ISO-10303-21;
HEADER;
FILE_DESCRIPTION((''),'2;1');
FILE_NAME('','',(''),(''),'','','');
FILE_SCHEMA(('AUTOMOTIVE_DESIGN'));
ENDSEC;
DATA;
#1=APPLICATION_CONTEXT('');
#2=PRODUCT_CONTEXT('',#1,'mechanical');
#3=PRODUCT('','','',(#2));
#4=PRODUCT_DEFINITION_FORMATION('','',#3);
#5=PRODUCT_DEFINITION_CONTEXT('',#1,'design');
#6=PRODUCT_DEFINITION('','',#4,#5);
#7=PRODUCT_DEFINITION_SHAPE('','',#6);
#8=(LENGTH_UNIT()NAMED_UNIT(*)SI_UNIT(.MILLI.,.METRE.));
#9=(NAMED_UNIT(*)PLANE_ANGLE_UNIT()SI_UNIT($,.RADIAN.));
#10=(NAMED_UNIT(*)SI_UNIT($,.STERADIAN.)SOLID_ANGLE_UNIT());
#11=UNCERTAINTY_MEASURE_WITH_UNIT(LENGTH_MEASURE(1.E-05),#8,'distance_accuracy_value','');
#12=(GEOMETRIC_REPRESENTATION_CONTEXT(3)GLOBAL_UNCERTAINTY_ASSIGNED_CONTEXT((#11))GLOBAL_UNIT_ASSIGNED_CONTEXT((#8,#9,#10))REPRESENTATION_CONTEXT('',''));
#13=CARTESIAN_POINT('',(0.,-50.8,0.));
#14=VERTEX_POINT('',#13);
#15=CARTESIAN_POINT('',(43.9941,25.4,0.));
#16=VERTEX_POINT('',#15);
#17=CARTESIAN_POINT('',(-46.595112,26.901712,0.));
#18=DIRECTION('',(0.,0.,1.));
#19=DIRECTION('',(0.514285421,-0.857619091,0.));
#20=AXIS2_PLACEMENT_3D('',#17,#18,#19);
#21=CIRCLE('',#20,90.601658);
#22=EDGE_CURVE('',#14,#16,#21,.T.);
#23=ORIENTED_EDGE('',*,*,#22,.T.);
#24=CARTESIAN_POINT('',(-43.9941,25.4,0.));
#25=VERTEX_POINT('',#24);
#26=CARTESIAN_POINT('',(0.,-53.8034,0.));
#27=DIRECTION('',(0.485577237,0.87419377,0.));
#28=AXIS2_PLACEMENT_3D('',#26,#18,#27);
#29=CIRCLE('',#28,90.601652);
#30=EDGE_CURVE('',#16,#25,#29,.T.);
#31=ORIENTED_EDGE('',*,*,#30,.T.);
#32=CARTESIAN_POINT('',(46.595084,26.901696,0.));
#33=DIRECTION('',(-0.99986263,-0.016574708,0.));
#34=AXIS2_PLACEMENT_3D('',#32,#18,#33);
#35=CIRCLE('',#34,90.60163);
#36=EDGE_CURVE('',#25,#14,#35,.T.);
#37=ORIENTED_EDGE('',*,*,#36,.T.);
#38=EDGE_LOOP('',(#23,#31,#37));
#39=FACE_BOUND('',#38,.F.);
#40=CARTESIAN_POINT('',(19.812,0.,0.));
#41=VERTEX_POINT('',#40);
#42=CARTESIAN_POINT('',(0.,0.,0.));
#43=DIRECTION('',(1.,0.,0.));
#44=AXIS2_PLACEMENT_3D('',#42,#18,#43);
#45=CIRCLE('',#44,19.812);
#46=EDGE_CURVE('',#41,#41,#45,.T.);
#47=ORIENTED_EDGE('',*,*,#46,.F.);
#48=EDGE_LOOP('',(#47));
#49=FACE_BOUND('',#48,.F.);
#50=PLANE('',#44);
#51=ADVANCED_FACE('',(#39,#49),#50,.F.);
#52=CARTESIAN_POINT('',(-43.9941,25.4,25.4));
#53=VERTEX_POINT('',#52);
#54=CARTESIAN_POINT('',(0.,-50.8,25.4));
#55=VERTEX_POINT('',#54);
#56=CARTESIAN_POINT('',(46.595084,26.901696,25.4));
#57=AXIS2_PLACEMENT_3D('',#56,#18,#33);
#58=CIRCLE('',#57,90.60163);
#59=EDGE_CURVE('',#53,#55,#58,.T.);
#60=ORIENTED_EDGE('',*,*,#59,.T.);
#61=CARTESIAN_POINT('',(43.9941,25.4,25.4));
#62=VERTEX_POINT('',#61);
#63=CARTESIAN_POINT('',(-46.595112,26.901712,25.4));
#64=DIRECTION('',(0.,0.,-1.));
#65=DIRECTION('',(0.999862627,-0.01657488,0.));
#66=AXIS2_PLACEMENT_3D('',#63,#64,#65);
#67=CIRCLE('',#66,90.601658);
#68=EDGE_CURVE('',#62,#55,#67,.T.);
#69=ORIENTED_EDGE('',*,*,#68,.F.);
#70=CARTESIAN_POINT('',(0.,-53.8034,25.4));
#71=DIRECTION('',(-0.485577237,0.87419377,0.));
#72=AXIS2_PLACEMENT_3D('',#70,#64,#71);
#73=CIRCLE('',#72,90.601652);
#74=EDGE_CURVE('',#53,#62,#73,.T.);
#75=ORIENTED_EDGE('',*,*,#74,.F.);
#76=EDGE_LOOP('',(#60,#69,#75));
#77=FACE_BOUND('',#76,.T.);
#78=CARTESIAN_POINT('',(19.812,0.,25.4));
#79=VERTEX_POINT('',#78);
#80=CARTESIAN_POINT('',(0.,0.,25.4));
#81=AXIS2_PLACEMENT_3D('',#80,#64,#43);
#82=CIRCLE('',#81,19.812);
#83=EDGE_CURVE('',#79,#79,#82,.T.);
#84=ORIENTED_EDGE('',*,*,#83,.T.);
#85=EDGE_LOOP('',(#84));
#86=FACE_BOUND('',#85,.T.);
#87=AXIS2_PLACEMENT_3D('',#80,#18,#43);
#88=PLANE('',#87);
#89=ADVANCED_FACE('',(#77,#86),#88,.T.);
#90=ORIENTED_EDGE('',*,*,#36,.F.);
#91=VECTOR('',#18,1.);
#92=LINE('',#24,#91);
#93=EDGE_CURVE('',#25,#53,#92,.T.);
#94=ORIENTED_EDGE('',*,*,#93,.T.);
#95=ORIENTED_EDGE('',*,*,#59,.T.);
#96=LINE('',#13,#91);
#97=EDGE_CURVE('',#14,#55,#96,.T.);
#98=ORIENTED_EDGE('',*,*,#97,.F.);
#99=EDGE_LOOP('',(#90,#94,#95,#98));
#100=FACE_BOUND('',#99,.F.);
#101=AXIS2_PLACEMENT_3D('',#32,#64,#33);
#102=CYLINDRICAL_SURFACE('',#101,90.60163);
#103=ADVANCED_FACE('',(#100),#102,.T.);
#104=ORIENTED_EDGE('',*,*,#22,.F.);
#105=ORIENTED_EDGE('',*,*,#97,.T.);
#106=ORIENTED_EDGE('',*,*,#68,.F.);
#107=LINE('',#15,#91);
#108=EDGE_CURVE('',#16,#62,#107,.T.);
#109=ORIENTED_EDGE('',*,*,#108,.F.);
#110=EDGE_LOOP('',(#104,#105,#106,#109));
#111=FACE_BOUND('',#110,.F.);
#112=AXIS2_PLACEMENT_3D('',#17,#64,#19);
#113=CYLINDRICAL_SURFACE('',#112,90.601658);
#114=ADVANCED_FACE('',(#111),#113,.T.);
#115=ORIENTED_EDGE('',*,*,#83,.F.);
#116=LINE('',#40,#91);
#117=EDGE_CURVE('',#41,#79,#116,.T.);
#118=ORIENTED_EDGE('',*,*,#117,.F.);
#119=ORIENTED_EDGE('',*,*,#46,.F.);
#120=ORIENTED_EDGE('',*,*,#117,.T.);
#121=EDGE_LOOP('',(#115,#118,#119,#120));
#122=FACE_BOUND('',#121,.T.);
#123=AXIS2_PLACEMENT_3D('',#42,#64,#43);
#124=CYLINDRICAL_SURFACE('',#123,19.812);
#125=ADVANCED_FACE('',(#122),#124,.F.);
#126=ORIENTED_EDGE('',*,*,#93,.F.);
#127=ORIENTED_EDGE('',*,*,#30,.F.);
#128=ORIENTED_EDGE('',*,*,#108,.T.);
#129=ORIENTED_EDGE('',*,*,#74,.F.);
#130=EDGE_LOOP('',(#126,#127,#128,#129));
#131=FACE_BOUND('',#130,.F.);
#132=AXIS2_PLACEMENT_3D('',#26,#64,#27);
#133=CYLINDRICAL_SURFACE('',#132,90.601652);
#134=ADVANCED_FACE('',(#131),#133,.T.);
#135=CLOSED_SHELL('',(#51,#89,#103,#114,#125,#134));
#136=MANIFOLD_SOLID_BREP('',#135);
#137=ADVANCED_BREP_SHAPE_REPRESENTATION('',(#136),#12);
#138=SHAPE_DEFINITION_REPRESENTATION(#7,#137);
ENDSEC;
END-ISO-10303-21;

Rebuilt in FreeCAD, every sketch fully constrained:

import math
import FreeCAD as App
import Part
import Sketcher
Q = App.Units.Quantity

doc = App.newDocument("Part")
body = doc.addObject("PartDesign::Body", "Body")

sketch1 = body.newObject("Sketcher::SketchObject", "Sketch")
sketch1.AttachmentSupport = (doc.getObject("XY_Plane"), [""])
sketch1.MapMode = "FlatFace"
sketch1.addGeometry(Part.ArcOfCircle(Part.Circle(App.Vector(47, 27, 0), App.Vector(0, 0, 1), 91), math.radians(-179), math.radians(-121)), False)
sketch1.addGeometry(Part.ArcOfCircle(Part.Circle(App.Vector(-47, 27, 0), App.Vector(0, 0, 1), 91), math.radians(-59), math.radians(-1)), False)
sketch1.addGeometry(Part.ArcOfCircle(Part.Circle(App.Vector(0, -54, 0), App.Vector(0, 0, 1), 91), math.radians(61), math.radians(119)), False)
sketch1.addGeometry(Part.Circle(App.Vector(0, 0, 0), App.Vector(0, 0, 1), 20), False)
sketch1.addConstraint(Sketcher.Constraint("Coincident", 0, 2, 1, 1))
sketch1.addConstraint(Sketcher.Constraint("Coincident", 1, 2, 2, 1))
sketch1.addConstraint(Sketcher.Constraint("Coincident", 2, 2, 0, 1))
sketch1.addConstraint(Sketcher.Constraint("Coincident", 3, 3, -1, 1))
sketch1.addConstraint(Sketcher.Constraint("Equal", 0, 1))
sketch1.addConstraint(Sketcher.Constraint("Equal", 1, 2))
sketch1.addConstraint(Sketcher.Constraint("Symmetric", 0, 3, 1, 3, -2))
sketch1.addConstraint(Sketcher.Constraint("PointOnObject", 2, 3, -2))
sketch1.addConstraint(Sketcher.Constraint("Diameter", 3, Q("1.56 in")))
sketch1.addConstraint(Sketcher.Constraint("DistanceY", 0, 2, -1, 1, Q("2 in")))
sketch1.addConstraint(Sketcher.Constraint("DistanceY", -1, 1, 1, 2, Q("1 in")))
sketch1.addConstraint(Sketcher.Constraint("Radius", 0, Q("3.567 in")))
sketch1.addConstraint(Sketcher.Constraint("DistanceX", 1, 3, 0, 3, Q("3.6689 in")))
pad1 = body.newObject("PartDesign::Pad", "Pad")
pad1.Profile = sketch1
pad1.Length = Q("1 in")

doc.recompute()
